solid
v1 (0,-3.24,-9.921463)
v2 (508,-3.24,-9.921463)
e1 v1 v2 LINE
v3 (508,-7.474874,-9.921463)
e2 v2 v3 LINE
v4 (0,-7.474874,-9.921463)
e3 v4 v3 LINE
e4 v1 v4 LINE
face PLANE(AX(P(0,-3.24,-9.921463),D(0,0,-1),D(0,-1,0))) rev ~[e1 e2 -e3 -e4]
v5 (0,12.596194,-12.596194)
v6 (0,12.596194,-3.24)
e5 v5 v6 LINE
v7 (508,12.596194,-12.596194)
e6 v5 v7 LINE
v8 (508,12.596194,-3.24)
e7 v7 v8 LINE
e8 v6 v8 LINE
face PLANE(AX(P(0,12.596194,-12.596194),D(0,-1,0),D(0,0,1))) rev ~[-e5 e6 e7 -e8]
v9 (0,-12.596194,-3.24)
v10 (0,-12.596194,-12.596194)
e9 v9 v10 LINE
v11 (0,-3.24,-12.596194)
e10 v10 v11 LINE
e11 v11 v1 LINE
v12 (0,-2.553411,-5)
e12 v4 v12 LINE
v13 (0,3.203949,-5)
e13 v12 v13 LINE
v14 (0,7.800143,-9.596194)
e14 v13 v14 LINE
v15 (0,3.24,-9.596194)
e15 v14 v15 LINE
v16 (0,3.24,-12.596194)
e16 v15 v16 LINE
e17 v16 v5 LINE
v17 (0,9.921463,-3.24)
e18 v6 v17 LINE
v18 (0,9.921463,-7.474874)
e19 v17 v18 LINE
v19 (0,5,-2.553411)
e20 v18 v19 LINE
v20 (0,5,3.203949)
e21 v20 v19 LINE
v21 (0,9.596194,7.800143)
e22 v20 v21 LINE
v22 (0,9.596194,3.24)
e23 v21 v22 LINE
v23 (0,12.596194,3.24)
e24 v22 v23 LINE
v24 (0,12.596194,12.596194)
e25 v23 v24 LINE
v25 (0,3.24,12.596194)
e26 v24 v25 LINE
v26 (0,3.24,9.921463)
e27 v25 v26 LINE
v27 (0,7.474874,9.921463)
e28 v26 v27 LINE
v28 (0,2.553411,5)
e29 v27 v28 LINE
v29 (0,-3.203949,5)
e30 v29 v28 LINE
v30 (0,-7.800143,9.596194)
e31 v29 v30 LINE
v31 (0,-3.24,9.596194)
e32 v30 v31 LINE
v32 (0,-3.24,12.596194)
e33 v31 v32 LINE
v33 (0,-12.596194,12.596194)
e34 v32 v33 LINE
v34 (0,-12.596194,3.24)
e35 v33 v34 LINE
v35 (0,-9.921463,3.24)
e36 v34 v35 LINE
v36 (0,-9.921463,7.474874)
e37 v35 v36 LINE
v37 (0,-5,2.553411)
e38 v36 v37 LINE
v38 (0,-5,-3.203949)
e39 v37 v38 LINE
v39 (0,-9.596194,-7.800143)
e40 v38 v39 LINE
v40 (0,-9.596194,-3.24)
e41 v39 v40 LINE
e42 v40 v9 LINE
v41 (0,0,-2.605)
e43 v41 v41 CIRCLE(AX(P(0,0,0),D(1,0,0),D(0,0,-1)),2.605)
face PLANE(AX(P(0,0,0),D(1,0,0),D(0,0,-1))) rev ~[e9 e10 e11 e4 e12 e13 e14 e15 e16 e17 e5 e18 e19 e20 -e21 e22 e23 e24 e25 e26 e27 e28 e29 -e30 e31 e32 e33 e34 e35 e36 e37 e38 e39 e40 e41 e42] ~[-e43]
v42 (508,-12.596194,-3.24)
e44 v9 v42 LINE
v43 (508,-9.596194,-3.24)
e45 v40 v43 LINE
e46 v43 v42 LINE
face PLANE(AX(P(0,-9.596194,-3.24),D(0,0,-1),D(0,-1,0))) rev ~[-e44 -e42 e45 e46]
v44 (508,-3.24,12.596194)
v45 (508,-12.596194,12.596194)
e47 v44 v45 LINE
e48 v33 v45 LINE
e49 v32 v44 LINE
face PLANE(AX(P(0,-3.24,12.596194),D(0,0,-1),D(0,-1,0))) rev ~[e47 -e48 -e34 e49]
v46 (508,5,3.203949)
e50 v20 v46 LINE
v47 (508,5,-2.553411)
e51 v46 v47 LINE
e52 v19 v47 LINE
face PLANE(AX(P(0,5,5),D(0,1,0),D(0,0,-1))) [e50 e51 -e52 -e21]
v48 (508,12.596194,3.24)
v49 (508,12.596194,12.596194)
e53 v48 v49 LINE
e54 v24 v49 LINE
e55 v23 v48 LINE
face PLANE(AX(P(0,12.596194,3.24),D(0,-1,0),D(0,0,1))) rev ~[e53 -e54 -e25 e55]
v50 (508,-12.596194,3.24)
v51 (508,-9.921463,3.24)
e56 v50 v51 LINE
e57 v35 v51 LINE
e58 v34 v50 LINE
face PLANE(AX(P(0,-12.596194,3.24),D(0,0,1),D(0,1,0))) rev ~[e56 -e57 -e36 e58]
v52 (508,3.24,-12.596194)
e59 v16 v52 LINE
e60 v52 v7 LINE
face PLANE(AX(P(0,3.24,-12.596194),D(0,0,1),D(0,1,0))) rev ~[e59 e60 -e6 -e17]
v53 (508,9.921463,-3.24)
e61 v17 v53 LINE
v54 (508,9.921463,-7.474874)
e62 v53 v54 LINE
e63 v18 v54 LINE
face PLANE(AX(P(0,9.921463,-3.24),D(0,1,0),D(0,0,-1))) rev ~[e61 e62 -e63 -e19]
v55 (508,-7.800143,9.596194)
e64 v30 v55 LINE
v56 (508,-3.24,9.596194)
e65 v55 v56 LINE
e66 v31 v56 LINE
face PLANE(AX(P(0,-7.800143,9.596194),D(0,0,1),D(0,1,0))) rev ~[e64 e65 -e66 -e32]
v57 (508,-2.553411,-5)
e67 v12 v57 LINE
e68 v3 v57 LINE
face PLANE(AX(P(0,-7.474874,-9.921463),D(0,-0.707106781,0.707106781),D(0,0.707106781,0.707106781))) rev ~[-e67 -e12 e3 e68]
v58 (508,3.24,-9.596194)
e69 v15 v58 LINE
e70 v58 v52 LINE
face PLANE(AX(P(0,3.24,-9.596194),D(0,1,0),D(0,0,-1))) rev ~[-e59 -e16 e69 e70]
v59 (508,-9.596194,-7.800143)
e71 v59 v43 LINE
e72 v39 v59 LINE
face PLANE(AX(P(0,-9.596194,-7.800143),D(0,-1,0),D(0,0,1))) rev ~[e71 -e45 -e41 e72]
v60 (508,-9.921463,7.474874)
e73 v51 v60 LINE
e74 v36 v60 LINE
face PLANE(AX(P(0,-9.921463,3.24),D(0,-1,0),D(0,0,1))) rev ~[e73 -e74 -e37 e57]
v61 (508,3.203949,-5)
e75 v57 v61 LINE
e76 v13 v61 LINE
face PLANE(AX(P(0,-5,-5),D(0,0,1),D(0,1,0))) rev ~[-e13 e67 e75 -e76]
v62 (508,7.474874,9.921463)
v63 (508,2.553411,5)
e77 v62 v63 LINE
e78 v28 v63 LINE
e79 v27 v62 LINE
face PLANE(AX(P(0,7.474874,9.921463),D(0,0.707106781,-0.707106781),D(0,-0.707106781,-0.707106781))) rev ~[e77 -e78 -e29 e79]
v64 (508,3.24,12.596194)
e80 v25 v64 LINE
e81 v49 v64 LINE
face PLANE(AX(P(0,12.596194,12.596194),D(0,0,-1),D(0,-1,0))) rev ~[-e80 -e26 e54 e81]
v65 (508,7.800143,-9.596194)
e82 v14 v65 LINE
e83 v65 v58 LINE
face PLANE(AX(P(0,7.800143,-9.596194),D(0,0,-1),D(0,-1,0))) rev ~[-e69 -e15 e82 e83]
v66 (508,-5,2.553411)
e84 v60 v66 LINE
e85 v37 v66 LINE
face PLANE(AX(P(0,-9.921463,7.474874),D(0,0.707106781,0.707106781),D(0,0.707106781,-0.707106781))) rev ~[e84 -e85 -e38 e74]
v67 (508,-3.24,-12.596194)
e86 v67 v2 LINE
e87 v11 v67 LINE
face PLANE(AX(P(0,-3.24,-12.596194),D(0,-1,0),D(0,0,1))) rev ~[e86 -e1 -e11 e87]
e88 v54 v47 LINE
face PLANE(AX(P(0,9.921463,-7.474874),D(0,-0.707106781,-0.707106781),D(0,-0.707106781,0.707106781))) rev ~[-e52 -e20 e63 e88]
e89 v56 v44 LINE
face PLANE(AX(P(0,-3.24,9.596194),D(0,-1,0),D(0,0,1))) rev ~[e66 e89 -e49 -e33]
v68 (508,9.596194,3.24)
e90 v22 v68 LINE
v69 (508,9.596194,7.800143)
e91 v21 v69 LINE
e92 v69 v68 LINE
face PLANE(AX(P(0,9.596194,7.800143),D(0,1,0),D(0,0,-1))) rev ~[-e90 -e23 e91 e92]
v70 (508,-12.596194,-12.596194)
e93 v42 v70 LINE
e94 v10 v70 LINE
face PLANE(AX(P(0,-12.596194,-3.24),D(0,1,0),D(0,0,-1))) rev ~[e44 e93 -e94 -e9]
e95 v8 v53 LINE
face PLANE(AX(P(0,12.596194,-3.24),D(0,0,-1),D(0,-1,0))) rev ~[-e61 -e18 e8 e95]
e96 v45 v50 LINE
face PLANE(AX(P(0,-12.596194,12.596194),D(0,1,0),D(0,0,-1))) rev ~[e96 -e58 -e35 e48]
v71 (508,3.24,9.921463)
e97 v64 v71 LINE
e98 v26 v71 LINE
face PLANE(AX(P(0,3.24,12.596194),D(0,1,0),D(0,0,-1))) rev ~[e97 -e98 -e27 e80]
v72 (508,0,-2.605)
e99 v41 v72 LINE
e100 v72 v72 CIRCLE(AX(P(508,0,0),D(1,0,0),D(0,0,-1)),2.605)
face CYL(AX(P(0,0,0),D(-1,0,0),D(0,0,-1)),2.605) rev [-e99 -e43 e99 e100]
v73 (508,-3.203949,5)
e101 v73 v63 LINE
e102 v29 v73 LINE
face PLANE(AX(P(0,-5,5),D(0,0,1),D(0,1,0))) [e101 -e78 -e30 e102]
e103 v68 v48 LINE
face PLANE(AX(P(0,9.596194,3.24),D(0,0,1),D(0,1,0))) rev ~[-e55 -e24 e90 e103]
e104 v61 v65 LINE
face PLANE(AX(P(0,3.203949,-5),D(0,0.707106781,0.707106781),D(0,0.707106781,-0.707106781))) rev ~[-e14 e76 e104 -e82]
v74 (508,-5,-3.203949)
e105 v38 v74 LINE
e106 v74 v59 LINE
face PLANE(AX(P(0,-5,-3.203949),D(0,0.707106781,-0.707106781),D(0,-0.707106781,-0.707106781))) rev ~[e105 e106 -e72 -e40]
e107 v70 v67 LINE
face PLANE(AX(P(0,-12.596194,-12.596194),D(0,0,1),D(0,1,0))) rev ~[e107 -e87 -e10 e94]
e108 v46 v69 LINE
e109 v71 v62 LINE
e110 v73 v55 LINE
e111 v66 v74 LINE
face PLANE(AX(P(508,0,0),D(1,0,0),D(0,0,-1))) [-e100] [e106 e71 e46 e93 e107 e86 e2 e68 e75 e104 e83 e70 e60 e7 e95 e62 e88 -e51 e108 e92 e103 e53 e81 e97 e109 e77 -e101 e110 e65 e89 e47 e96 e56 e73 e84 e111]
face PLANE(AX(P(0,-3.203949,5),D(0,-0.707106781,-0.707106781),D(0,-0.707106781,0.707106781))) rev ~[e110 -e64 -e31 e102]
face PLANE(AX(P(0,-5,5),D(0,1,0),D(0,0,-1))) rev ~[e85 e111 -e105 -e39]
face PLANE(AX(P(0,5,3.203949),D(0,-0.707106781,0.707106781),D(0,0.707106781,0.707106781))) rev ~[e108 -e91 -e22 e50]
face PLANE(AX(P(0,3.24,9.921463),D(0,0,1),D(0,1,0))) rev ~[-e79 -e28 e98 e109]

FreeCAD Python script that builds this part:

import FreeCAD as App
import Part
import Sketcher
from FreeCAD import Vector
Q = App.Units.Quantity

doc = App.newDocument("Part")
body = doc.addObject("PartDesign::Body", "Body")

sketch1 = body.newObject("Sketcher::SketchObject", "Sketch")
sketch1.AttachmentSupport = (doc.getObject("YZ_Plane"), [""])
sketch1.MapMode = "FlatFace"
sketch1.addGeometry([
    Part.LineSegment(Vector(5, 5, 0), Vector(-5, 5, 0)),
    Part.LineSegment(Vector(-5, 5, 0), Vector(-5, -5, 0)),
    Part.LineSegment(Vector(-5, -5, 0), Vector(3.203949, -5, 0)),
    Part.LineSegment(Vector(3.203949, -5, 0), Vector(7.800143, -9.596194, 0)),
    Part.LineSegment(Vector(7.800143, -9.596194, 0), Vector(3.24, -9.596194, 0)),
    Part.LineSegment(Vector(3.24, -9.596194, 0), Vector(3.24, -12.596194, 0)),
    Part.LineSegment(Vector(3.24, -12.596194, 0), Vector(12.596194, -12.596194, 0)),
    Part.LineSegment(Vector(12.596194, -12.596194, 0), Vector(12.596194, -3.24, 0)),
    Part.LineSegment(Vector(12.596194, -3.24, 0), Vector(9.921463, -3.24, 0)),
    Part.LineSegment(Vector(9.921463, -3.24, 0), Vector(9.921463, -7.474874, 0)),
    Part.LineSegment(Vector(9.921463, -7.474874, 0), Vector(5, -2.553411, 0)),
    Part.LineSegment(Vector(5, -2.553411, 0), Vector(5, 5, 0)),
    Part.Circle(Vector(0, 0, 0), Vector(0, 0, 1), 2.605),
], False)
sketch1.addConstraint([
    Sketcher.Constraint("Coincident", 0, 2, 1, 1),
    Sketcher.Constraint("Coincident", 1, 2, 2, 1),
    Sketcher.Constraint("Coincident", 2, 2, 3, 1),
    Sketcher.Constraint("Coincident", 3, 2, 4, 1),
    Sketcher.Constraint("Coincident", 4, 2, 5, 1),
    Sketcher.Constraint("Coincident", 5, 2, 6, 1),
    Sketcher.Constraint("Coincident", 6, 2, 7, 1),
    Sketcher.Constraint("Coincident", 7, 2, 8, 1),
    Sketcher.Constraint("Coincident", 8, 2, 9, 1),
    Sketcher.Constraint("Coincident", 9, 2, 10, 1),
    Sketcher.Constraint("Coincident", 10, 2, 11, 1),
    Sketcher.Constraint("Coincident", 11, 2, 0, 1),
    Sketcher.Constraint("Horizontal", 0),
    Sketcher.Constraint("Vertical", 1),
    Sketcher.Constraint("Horizontal", 2),
    Sketcher.Constraint("Horizontal", 4),
    Sketcher.Constraint("Vertical", 5),
    Sketcher.Constraint("Horizontal", 6),
    Sketcher.Constraint("Vertical", 7),
    Sketcher.Constraint("Horizontal", 8),
    Sketcher.Constraint("Vertical", 9),
    Sketcher.Constraint("Vertical", 11),
    Sketcher.Constraint("Coincident", 12, 3, -1, 1),
    Sketcher.Constraint("Symmetric", 1, 2, 11, 2, -1, 1),
    Sketcher.Constraint("Parallel", 3, 10),
    Sketcher.Constraint("Equal", 0, 1),
    Sketcher.Constraint("Equal", 6, 7),
    Sketcher.Constraint("Diameter", 12, Q("5.21 mm")),
    Sketcher.Constraint("DistanceX", 0, 2, 0, 1, Q("10 mm")),
    Sketcher.Constraint("DistanceY", 5, 2, 5, 1, Q("3 mm")),
    Sketcher.Constraint("Angle", 3, Q("-45 deg")),
    Sketcher.Constraint("Distance", 3, Q("6.5 mm")),
    Sketcher.Constraint("Distance", 10, Q("6.96 mm")),
    Sketcher.Constraint("DistanceX", -1, 1, 4, 2, Q("3.24 mm")),
    Sketcher.Constraint("DistanceY", 7, 2, -1, 1, Q("3.24 mm")),
    Sketcher.Constraint("DistanceX", 2, 1, 2, 2, Q("8.203949 mm")),
    Sketcher.Constraint("DistanceY", 11, 1, 11, 2, Q("7.553411 mm")),
])
pad1 = body.newObject("PartDesign::Pad", "Pad")
pad1.Profile = sketch1
pad1.Length = 508
doc.recompute()

polarpattern = body.newObject("PartDesign::PolarPattern", "PolarPattern")
polarpattern.Originals = [pad1]
polarpattern.Axis = (doc.getObject("X_Axis"), [""])
polarpattern.Angle = 360
polarpattern.Occurrences = 4
body.Tip = polarpattern

doc.recompute()
